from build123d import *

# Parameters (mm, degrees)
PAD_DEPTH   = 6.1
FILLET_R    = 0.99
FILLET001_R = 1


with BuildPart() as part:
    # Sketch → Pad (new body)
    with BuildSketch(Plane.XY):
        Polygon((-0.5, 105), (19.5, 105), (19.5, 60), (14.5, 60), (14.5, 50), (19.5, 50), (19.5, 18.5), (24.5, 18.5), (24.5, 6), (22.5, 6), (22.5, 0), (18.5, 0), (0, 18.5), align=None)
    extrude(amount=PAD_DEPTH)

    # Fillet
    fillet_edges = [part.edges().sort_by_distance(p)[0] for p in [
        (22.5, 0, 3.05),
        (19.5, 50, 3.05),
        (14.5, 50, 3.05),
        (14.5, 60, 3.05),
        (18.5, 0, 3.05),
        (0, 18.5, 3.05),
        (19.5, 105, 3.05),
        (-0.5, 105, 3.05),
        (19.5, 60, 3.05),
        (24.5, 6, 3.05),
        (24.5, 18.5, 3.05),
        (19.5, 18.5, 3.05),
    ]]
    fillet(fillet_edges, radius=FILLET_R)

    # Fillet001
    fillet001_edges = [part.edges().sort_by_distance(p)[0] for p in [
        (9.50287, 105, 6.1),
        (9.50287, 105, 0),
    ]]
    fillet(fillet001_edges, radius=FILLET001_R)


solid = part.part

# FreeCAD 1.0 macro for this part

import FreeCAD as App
import Part
import Sketcher
from FreeCAD import Vector
Q = App.Units.Quantity


def edges_at(feature, points):
    """Names of the edges that pass closest to the given points."""
    edges = feature.Shape.Edges
    near = lambda p: min(range(len(edges)), key=lambda i: edges[i].distToShape(Part.Vertex(*p))[0])
    return sorted({f"Edge{near(p) + 1}" for p in points})


def add_polygon(sketch, points):
    """Adds a closed chain of lines whose ends are joined by coincident constraints."""
    first, n = sketch.GeometryCount, len(points)
    for a, b in zip(points, points[1:] + points[:1]):
        sketch.addGeometry(Part.LineSegment(App.Vector(*a, 0), App.Vector(*b, 0)), False)
    for i in range(n):
        sketch.addConstraint(Sketcher.Constraint("Coincident", first + i, 2, first + (i + 1) % n, 1))

doc = App.newDocument("Part")
body = doc.addObject("PartDesign::Body", "Body")

# Sketch on XY plane
sketch1 = doc.addObject("Sketcher::SketchObject", "Sketch")
body.addObject(sketch1)
sketch1.AttachmentSupport = (doc.XY_Plane, [""])
sketch1.MapMode = "FlatFace"
add_polygon(sketch1, [(19.5, 105), (-0.5, 105), (0, 18.5), (18.5, 0), (22.5, 0), (22.5, 6), (24.5, 6), (24.5, 18.5), (19.5, 18.5), (19.5, 50), (14.5, 50), (14.5, 60), (19.5, 60)])  # lines 0-12
sketch1.addConstraint(Sketcher.Constraint("Horizontal", 0))
sketch1.addConstraint(Sketcher.Constraint("Horizontal", 3))
sketch1.addConstraint(Sketcher.Constraint("Vertical", 4))
sketch1.addConstraint(Sketcher.Constraint("Horizontal", 5))
sketch1.addConstraint(Sketcher.Constraint("Vertical", 6))
sketch1.addConstraint(Sketcher.Constraint("Horizontal", 7))
sketch1.addConstraint(Sketcher.Constraint("Vertical", 8))
sketch1.addConstraint(Sketcher.Constraint("Horizontal", 9))
sketch1.addConstraint(Sketcher.Constraint("Vertical", 10))
sketch1.addConstraint(Sketcher.Constraint("Horizontal", 11))
sketch1.addConstraint(Sketcher.Constraint("Vertical", 12))
sketch1.addConstraint(Sketcher.Constraint("PointOnObject", 1, 2, -2))
sketch1.addConstraint(Sketcher.Constraint("PointOnObject", 2, 2, -1))
sketch1.addConstraint(Sketcher.Constraint("Horizontal", 1, 2, 6, 2))
sketch1.addConstraint(Sketcher.Constraint("Vertical", 8, 2, 11, 2))
sketch1.addConstraint(Sketcher.Constraint("Equal", 7, 9))
sketch1.addConstraint(Sketcher.Constraint("DistanceX", 0, 2, 0, 1, 20.0))
sketch1.addConstraint(Sketcher.Constraint("DistanceX", 3, 1, 3, 2, 4.0))
sketch1.addConstraint(Sketcher.Constraint("DistanceX", 5, 1, 5, 2, 2.0))
sketch1.addConstraint(Sketcher.Constraint("DistanceX", 7, 2, 7, 1, 5.0))
sketch1.addConstraint(Sketcher.Constraint("DistanceY", 4, 1, 4, 2, 6.0))
sketch1.addConstraint(Sketcher.Constraint("DistanceY", 10, 1, 10, 2, 10.0))
sketch1.addConstraint(Sketcher.Constraint("DistanceY", 12, 1, 12, 2, 45.0))
sketch1.addConstraint(Sketcher.Constraint("Angle", 2, Q("-45 deg")))
sketch1.addConstraint(Sketcher.Constraint("DistanceY", 6, 1, 6, 2, 12.5))
sketch1.addConstraint(Sketcher.Constraint("DistanceY", 8, 1, 8, 2, 31.5))
pad1 = doc.addObject("PartDesign::Pad", "Pad")
body.addObject(pad1)
pad1.Profile = sketch1
pad1.Length = 6.1
doc.recompute()

fillet = doc.addObject("PartDesign::Fillet", "Fillet")
body.addObject(fillet)
fillet.Base = (pad1, edges_at(pad1, [
    (22.5, 0, 3.05),
    (19.5, 50, 3.05),
    (14.5, 50, 3.05),
    (14.5, 60, 3.05),
    (18.5, 0, 3.05),
    (0, 18.5, 3.05),
    (19.5, 105, 3.05),
    (-0.5, 105, 3.05),
    (19.5, 60, 3.05),
    (24.5, 6, 3.05),
    (24.5, 18.5, 3.05),
    (19.5, 18.5, 3.05),
]))
fillet.Radius = 0.99
doc.recompute()

fillet2 = doc.addObject("PartDesign::Fillet", "Fillet001")
body.addObject(fillet2)
fillet2.Base = (fillet, edges_at(fillet, [(9.503, 105, 6.1), (9.503, 105, 0)]))
fillet2.Radius = 1

doc.recompute()
